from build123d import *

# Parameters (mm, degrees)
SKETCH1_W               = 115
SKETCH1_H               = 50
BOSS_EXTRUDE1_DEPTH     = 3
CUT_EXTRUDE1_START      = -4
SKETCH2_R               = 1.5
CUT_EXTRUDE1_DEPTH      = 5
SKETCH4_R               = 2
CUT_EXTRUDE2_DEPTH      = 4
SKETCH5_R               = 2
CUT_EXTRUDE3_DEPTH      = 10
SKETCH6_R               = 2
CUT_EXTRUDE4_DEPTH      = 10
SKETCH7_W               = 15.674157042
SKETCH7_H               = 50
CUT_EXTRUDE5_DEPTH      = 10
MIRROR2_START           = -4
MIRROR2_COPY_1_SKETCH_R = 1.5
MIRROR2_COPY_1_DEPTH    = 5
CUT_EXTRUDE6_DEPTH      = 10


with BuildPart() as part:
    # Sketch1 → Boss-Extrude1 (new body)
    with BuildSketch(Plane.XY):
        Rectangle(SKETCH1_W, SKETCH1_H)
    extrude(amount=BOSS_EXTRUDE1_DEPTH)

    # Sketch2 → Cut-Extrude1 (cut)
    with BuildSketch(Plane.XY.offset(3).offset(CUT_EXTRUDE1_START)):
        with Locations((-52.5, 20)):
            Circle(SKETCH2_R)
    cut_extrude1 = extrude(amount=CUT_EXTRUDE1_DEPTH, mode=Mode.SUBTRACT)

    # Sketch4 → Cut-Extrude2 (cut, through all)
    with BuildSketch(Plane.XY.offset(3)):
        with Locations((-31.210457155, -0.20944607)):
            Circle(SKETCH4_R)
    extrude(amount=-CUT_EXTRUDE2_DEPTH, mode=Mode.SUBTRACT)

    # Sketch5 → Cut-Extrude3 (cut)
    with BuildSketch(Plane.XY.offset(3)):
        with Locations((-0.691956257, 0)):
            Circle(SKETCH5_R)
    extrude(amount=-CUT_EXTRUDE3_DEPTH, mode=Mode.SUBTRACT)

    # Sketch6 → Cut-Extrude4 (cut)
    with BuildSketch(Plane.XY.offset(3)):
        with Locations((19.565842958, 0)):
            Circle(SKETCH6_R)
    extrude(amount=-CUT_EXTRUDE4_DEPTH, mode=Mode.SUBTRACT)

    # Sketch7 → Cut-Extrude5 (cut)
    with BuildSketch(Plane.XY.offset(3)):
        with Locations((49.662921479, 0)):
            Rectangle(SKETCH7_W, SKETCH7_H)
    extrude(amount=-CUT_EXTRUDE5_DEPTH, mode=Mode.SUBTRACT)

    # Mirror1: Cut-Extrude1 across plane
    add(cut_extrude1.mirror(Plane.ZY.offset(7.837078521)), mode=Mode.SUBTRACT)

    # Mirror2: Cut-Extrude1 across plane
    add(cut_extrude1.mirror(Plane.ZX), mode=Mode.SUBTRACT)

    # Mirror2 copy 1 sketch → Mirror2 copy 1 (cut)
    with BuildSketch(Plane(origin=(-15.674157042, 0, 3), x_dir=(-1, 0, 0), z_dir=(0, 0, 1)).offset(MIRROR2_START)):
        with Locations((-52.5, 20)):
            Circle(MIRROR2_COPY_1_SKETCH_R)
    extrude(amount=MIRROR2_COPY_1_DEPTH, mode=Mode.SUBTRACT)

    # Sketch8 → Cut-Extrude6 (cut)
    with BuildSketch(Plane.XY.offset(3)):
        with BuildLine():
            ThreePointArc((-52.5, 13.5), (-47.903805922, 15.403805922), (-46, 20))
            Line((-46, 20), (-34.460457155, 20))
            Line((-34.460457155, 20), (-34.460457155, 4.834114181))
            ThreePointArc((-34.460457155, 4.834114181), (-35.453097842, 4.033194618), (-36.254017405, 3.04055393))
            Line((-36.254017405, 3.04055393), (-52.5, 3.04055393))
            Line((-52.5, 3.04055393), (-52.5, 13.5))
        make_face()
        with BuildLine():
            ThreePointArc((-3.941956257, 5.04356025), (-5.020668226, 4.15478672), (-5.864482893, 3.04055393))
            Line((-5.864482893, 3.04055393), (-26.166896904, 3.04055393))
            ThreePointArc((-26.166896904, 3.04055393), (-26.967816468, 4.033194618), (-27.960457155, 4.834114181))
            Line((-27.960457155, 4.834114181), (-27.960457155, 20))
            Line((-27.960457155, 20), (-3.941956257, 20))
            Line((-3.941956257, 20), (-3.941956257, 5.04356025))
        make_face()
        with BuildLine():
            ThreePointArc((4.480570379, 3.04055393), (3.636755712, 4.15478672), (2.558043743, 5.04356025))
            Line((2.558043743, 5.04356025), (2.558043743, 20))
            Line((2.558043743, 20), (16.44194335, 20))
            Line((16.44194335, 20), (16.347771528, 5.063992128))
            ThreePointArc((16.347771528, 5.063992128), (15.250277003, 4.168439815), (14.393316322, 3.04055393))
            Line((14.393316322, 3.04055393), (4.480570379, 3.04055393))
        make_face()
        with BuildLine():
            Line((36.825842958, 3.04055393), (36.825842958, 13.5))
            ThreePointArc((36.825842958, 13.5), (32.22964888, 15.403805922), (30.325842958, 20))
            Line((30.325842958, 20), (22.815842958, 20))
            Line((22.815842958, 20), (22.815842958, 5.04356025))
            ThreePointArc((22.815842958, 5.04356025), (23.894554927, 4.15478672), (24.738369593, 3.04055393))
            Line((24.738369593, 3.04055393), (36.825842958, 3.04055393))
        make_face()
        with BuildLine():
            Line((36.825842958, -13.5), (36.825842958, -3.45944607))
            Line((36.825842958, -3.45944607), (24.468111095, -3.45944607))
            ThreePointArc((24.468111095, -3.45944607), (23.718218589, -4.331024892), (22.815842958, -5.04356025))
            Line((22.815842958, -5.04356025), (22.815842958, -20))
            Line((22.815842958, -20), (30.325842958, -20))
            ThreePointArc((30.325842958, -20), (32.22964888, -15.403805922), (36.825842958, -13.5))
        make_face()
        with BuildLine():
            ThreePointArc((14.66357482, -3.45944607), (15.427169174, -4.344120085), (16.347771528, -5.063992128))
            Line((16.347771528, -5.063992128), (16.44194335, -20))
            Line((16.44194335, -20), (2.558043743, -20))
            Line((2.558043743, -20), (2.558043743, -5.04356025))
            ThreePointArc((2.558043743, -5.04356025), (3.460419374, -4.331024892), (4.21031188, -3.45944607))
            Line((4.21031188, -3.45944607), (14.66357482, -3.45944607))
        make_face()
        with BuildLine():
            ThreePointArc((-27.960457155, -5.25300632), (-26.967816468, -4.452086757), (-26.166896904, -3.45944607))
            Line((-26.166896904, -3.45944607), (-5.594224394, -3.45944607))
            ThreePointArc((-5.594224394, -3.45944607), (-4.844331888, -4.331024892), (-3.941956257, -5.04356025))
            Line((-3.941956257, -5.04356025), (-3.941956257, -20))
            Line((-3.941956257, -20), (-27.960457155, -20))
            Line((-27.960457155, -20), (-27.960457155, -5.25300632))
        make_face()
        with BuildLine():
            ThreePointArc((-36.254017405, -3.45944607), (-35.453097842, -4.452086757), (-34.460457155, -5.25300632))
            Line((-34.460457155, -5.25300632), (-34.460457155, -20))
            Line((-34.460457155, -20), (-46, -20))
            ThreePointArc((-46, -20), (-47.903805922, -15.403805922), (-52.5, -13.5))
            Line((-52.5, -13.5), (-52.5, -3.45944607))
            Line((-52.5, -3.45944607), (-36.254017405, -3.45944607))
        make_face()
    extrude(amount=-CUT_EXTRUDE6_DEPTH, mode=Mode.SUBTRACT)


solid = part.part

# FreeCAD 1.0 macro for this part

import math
import FreeCAD as App
import Part
import Sketcher

V = App.Vector

doc = App.newDocument("Part")
body = doc.addObject("PartDesign::Body", "Body")

# Sketch on XY plane
sketch1 = body.newObject("Sketcher::SketchObject", "Sketch")
sketch1.AttachmentSupport = (doc.getObject("XY_Plane"), [""])
sketch1.MapMode = "FlatFace"
sketch1.addGeometry([
    Part.LineSegment(V(-58, 25, 0), V(-58, -25, 0)),
    Part.LineSegment(V(-58, -25, 0), V(58, -25, 0)),
    Part.LineSegment(V(58, -25, 0), V(58, 25, 0)),
    Part.LineSegment(V(58, 25, 0), V(-58, 25, 0)),
], False)
sketch1.addConstraint([
    Sketcher.Constraint("Coincident", 0, 2, 1, 1),
    Sketcher.Constraint("Coincident", 1, 2, 2, 1),
    Sketcher.Constraint("Coincident", 2, 2, 3, 1),
    Sketcher.Constraint("Coincident", 3, 2, 0, 1),
    Sketcher.Constraint("Vertical", 0),
    Sketcher.Constraint("Horizontal", 1),
    Sketcher.Constraint("Vertical", 2),
    Sketcher.Constraint("Horizontal", 3),
    Sketcher.Constraint("Symmetric", 0, 2, 2, 2, -1, 1),
    Sketcher.Constraint("DistanceX", 1, 1, 1, 2, 115.0),
    Sketcher.Constraint("DistanceY", 0, 2, 0, 1, 50.0),
])
pad1 = body.newObject("PartDesign::Pad", "Pad")
pad1.Profile = sketch1
pad1.Length = 3

# Sketch on XY plane
sketch2 = body.newObject("Sketcher::SketchObject", "Sketch001")
sketch2.AttachmentSupport = (doc.getObject("XY_Plane"), [""])
sketch2.MapMode = "FlatFace"
sketch2.AttachmentOffset = App.Placement(V(0, 0, -1), App.Rotation())
sketch2.addGeometry(Part.Circle(V(-52.5, 20, 0), V(0, 0, 1), 1.5), False)
sketch2.addConstraint([
    Sketcher.Constraint("Diameter", 0, 3.0),
    Sketcher.Constraint("DistanceY", -1, 1, 0, 3, 20.0),
    Sketcher.Constraint("DistanceX", 0, 3, -1, 1, 52.5),
])
pocket1 = body.newObject("PartDesign::Pocket", "Pocket")
pocket1.Profile = sketch2
pocket1.Length = 5
pocket1.Reversed = True

# Sketch on XY plane
sketch3 = body.newObject("Sketcher::SketchObject", "Sketch002")
sketch3.AttachmentSupport = (doc.getObject("XY_Plane"), [""])
sketch3.MapMode = "FlatFace"
sketch3.AttachmentOffset = App.Placement(V(0, 0, 3), App.Rotation())
sketch3.addGeometry(Part.Circle(V(-31.2, -0.2, 0), V(0, 0, 1), 2), False)
sketch3.addConstraint([
    Sketcher.Constraint("Diameter", 0, 4.0),
    Sketcher.Constraint("DistanceX", 0, 3, -1, 1, 31.210457),
    Sketcher.Constraint("DistanceY", 0, 3, -1, 1, 0.209446),
])
pocket2 = body.newObject("PartDesign::Pocket", "Pocket001")
pocket2.Profile = sketch3
pocket2.Type = "ThroughAll"

# Sketch on XY plane
sketch4 = body.newObject("Sketcher::SketchObject", "Sketch003")
sketch4.AttachmentSupport = (doc.getObject("XY_Plane"), [""])
sketch4.MapMode = "FlatFace"
sketch4.AttachmentOffset = App.Placement(V(0, 0, 3), App.Rotation())
sketch4.addGeometry(Part.Circle(V(-0.7, 0, 0), V(0, 0, 1), 2), False)
sketch4.addConstraint([
    Sketcher.Constraint("PointOnObject", 0, 3, -1),
    Sketcher.Constraint("Diameter", 0, 4.0),
    Sketcher.Constraint("DistanceX", 0, 3, -1, 1, 0.691956),
])
pocket3 = body.newObject("PartDesign::Pocket", "Pocket002")
pocket3.Profile = sketch4
pocket3.Length = 10

# Sketch on XY plane
sketch5 = body.newObject("Sketcher::SketchObject", "Sketch004")
sketch5.AttachmentSupport = (doc.getObject("XY_Plane"), [""])
sketch5.MapMode = "FlatFace"
sketch5.AttachmentOffset = App.Placement(V(0, 0, 3), App.Rotation())
sketch5.addGeometry(Part.Circle(V(19.6, 0, 0), V(0, 0, 1), 2), False)
sketch5.addConstraint([
    Sketcher.Constraint("PointOnObject", 0, 3, -1),
    Sketcher.Constraint("Diameter", 0, 4.0),
    Sketcher.Constraint("DistanceX", -1, 1, 0, 3, 19.565843),
])
pocket4 = body.newObject("PartDesign::Pocket", "Pocket003")
pocket4.Profile = sketch5
pocket4.Length = 10

# Sketch on XY plane
sketch6 = body.newObject("Sketcher::SketchObject", "Sketch005")
sketch6.AttachmentSupport = (doc.getObject("XY_Plane"), [""])
sketch6.MapMode = "FlatFace"
sketch6.AttachmentOffset = App.Placement(V(0, 0, 3), App.Rotation())
sketch6.addGeometry([
    Part.LineSegment(V(42, 25, 0), V(42, -25, 0)),
    Part.LineSegment(V(42, -25, 0), V(58, -25, 0)),
    Part.LineSegment(V(58, -25, 0), V(58, 25, 0)),
    Part.LineSegment(V(58, 25, 0), V(42, 25, 0)),
], False)
sketch6.addConstraint([
    Sketcher.Constraint("Coincident", 0, 2, 1, 1),
    Sketcher.Constraint("Coincident", 1, 2, 2, 1),
    Sketcher.Constraint("Coincident", 2, 2, 3, 1),
    Sketcher.Constraint("Coincident", 3, 2, 0, 1),
    Sketcher.Constraint("Vertical", 0),
    Sketcher.Constraint("Horizontal", 1),
    Sketcher.Constraint("Vertical", 2),
    Sketcher.Constraint("Horizontal", 3),
    Sketcher.Constraint("DistanceY", 0, 2, 0, 1, 50.0),
    Sketcher.Constraint("DistanceY", 0, 2, -1, 1, 25.0),
    Sketcher.Constraint("DistanceX", -1, 1, 1, 2, 57.5),
    Sketcher.Constraint("DistanceX", 1, 1, 1, 2, 15.674157),
])
pocket5 = body.newObject("PartDesign::Pocket", "Pocket004")
pocket5.Profile = sketch6
pocket5.Length = 10
doc.recompute()

datumplane = body.newObject("PartDesign::Plane", "DatumPlane")
datumplane.AttachmentSupport = (doc.getObject("YZ_Plane"), [""])
datumplane.MapMode = "FlatFace"
datumplane.AttachmentOffset = App.Placement(V(0, 0, -7.837079), App.Rotation())
mirrored = body.newObject("PartDesign::Mirrored", "Mirrored")
mirrored.Originals = [pocket1]
mirrored.MirrorPlane = (datumplane, [""])
body.Tip = mirrored
doc.recompute()

mirrored2 = body.newObject("PartDesign::Mirrored", "Mirrored001")
mirrored2.Originals = [pocket1]
mirrored2.MirrorPlane = (doc.getObject("XZ_Plane"), [""])
body.Tip = mirrored2

# Sketch on XY plane
sketch7 = body.newObject("Sketcher::SketchObject", "Sketch006")
sketch7.AttachmentSupport = (doc.getObject("XY_Plane"), [""])
sketch7.MapMode = "FlatFace"
sketch7.AttachmentOffset = App.Placement(V(0, 0, -1), App.Rotation())
sketch7.addGeometry(Part.Circle(V(36.8, -20, 0), V(0, 0, 1), 1.5), False)
sketch7.addConstraint([
    Sketcher.Constraint("Diameter", 0, 3.0),
    Sketcher.Constraint("DistanceY", 0, 3, -1, 1, 20.0),
    Sketcher.Constraint("DistanceX", -1, 1, 0, 3, 36.825843),
])
pocket6 = body.newObject("PartDesign::Pocket", "Pocket005")
pocket6.Profile = sketch7
pocket6.Length = 5
pocket6.Reversed = True

# Sketch on XY plane
sketch8 = body.newObject("Sketcher::SketchObject", "Sketch007")
sketch8.AttachmentSupport = (doc.getObject("XY_Plane"), [""])
sketch8.MapMode = "FlatFace"
sketch8.AttachmentOffset = App.Placement(V(0, 0, 3), App.Rotation())
sketch8.addGeometry([
    Part.ArcOfCircle(Part.Circle(V(-52.5, 20, 0), V(0, 0, 1), 6.5), math.radians(-90), math.radians(0)),  # 0
    Part.LineSegment(V(-52.5, 13.5, 0), V(-52.5, 3, 0)),  # 1
    Part.LineSegment(V(-52.5, 3, 0), V(-36.3, 3, 0)),  # 2
    Part.ArcOfCircle(Part.Circle(V(-31.2, -0.2, 0), V(0, 0, 1), 6), math.radians(123), math.radians(147)),  # 3
    Part.LineSegment(V(-34.5, 4.8, 0), V(-34.5, 20, 0)),  # 4
    Part.LineSegment(V(-34.5, 20, 0), V(-46, 20, 0)),  # 5
    Part.ArcOfCircle(Part.Circle(V(-0.7, 0, 0), V(0, 0, 1), 6), math.radians(123), math.radians(150)),  # 6
    Part.LineSegment(V(-3.9, 5, 0), V(-3.9, 20, 0)),  # 7
    Part.LineSegment(V(-3.9, 20, 0), V(-28, 20, 0)),  # 8
    Part.LineSegment(V(-28, 20, 0), V(-28, 4.8, 0)),  # 9
    Part.ArcOfCircle(Part.Circle(V(-31.2, -0.2, 0), V(0, 0, 1), 6), math.radians(33), math.radians(57)),  # 10
    Part.LineSegment(V(-26.2, 3, 0), V(-5.9, 3, 0)),  # 11
    Part.ArcOfCircle(Part.Circle(V(-0.7, 0, 0), V(0, 0, 1), 6), math.radians(30), math.radians(57)),  # 12
    Part.LineSegment(V(4.5, 3, 0), V(14.4, 3, 0)),  # 13
    Part.ArcOfCircle(Part.Circle(V(19.6, 0, 0), V(0, 0, 1), 6), math.radians(122), math.radians(150)),  # 14
    Part.LineSegment(V(16.3, 5.1, 0), V(16.4, 20, 0)),  # 15
    Part.LineSegment(V(16.4, 20, 0), V(2.6, 20, 0)),  # 16
    Part.LineSegment(V(2.6, 20, 0), V(2.6, 5, 0)),  # 17
    Part.LineSegment(V(36.8, 3, 0), V(36.8, 13.5, 0)),  # 18
    Part.ArcOfCircle(Part.Circle(V(36.8, 20, 0), V(0, 0, 1), 6.5), math.radians(180), math.radians(270)),  # 19
    Part.LineSegment(V(30.3, 20, 0), V(22.8, 20, 0)),  # 20
    Part.LineSegment(V(22.8, 20, 0), V(22.8, 5, 0)),  # 21
    Part.ArcOfCircle(Part.Circle(V(19.6, 0, 0), V(0, 0, 1), 6), math.radians(30), math.radians(57)),  # 22
    Part.LineSegment(V(24.7, 3, 0), V(36.8, 3, 0)),  # 23
    Part.LineSegment(V(36.8, -13.5, 0), V(36.8, -3.5, 0)),  # 24
    Part.LineSegment(V(36.8, -3.5, 0), V(24.5, -3.5, 0)),  # 25
    Part.ArcOfCircle(Part.Circle(V(19.6, 0, 0), V(0, 0, 1), 6), math.radians(-57), math.radians(-35)),  # 26
    Part.LineSegment(V(22.8, -5, 0), V(22.8, -20, 0)),  # 27
    Part.LineSegment(V(22.8, -20, 0), V(30.3, -20, 0)),  # 28
    Part.ArcOfCircle(Part.Circle(V(36.8, -20, 0), V(0, 0, 1), 6.5), math.radians(90), math.radians(180)),  # 29
    Part.ArcOfCircle(Part.Circle(V(19.6, 0, 0), V(0, 0, 1), 6), math.radians(-145), math.radians(-122)),  # 30
    Part.LineSegment(V(14.7, -3.5, 0), V(4.2, -3.5, 0)),  # 31
    Part.ArcOfCircle(Part.Circle(V(-0.7, 0, 0), V(0, 0, 1), 6), math.radians(-57), math.radians(-35)),  # 32
    Part.LineSegment(V(2.6, -5, 0), V(2.6, -20, 0)),  # 33
    Part.LineSegment(V(2.6, -20, 0), V(16.4, -20, 0)),  # 34
    Part.LineSegment(V(16.4, -20, 0), V(16.3, -5.1, 0)),  # 35
    Part.ArcOfCircle(Part.Circle(V(-31.2, -0.2, 0), V(0, 0, 1), 6), math.radians(-57), math.radians(-33)),  # 36
    Part.LineSegment(V(-28, -5.3, 0), V(-28, -20, 0)),  # 37
    Part.LineSegment(V(-28, -20, 0), V(-3.9, -20, 0)),  # 38
    Part.LineSegment(V(-3.9, -20, 0), V(-3.9, -5, 0)),  # 39
    Part.ArcOfCircle(Part.Circle(V(-0.7, 0, 0), V(0, 0, 1), 6), math.radians(-145), math.radians(-123)),  # 40
    Part.LineSegment(V(-5.6, -3.5, 0), V(-26.2, -3.5, 0)),  # 41
    Part.ArcOfCircle(Part.Circle(V(-31.2, -0.2, 0), V(0, 0, 1), 6), math.radians(-147), math.radians(-123)),  # 42
    Part.LineSegment(V(-36.3, -3.5, 0), V(-52.5, -3.5, 0)),  # 43
    Part.LineSegment(V(-52.5, -3.5, 0), V(-52.5, -13.5, 0)),  # 44
    Part.ArcOfCircle(Part.Circle(V(-52.5, -20, 0), V(0, 0, 1), 6.5), math.radians(0), math.radians(90)),  # 45
    Part.LineSegment(V(-46, -20, 0), V(-34.5, -20, 0)),  # 46
    Part.LineSegment(V(-34.5, -20, 0), V(-34.5, -5.3, 0)),  # 47
], False)
sketch8.addConstraint([
    Sketcher.Constraint("Coincident", 0, 1, 1, 1),
    Sketcher.Constraint("Coincident", 1, 2, 2, 1),
    Sketcher.Constraint("Coincident", 2, 2, 3, 2),
    Sketcher.Constraint("Coincident", 3, 1, 4, 1),
    Sketcher.Constraint("Coincident", 4, 2, 5, 1),
    Sketcher.Constraint("Coincident", 5, 2, 0, 2),
    Sketcher.Constraint("Coincident", 6, 1, 7, 1),
    Sketcher.Constraint("Coincident", 7, 2, 8, 1),
    Sketcher.Constraint("Coincident", 8, 2, 9, 1),
    Sketcher.Constraint("Coincident", 9, 2, 10, 2),
    Sketcher.Constraint("Coincident", 10, 1, 11, 1),
    Sketcher.Constraint("Coincident", 11, 2, 6, 2),
    Sketcher.Constraint("Coincident", 12, 1, 13, 1),
    Sketcher.Constraint("Coincident", 13, 2, 14, 2),
    Sketcher.Constraint("Coincident", 14, 1, 15, 1),
    Sketcher.Constraint("Coincident", 15, 2, 16, 1),
    Sketcher.Constraint("Coincident", 16, 2, 17, 1),
    Sketcher.Constraint("Coincident", 17, 2, 12, 2),
    Sketcher.Constraint("Coincident", 18, 2, 19, 2),
    Sketcher.Constraint("Coincident", 19, 1, 20, 1),
    Sketcher.Constraint("Coincident", 20, 2, 21, 1),
    Sketcher.Constraint("Coincident", 21, 2, 22, 2),
    Sketcher.Constraint("Coincident", 22, 1, 23, 1),
    Sketcher.Constraint("Coincident", 23, 2, 18, 1),
    Sketcher.Constraint("Coincident", 24, 2, 25, 1),
    Sketcher.Constraint("Coincident", 25, 2, 26, 2),
    Sketcher.Constraint("Coincident", 26, 1, 27, 1),
    Sketcher.Constraint("Coincident", 27, 2, 28, 1),
    Sketcher.Constraint("Coincident", 28, 2, 29, 2),
    Sketcher.Constraint("Coincident", 29, 1, 24, 1),
    Sketcher.Constraint("Coincident", 30, 1, 31, 1),
    Sketcher.Constraint("Coincident", 31, 2, 32, 2),
    Sketcher.Constraint("Coincident", 32, 1, 33, 1),
    Sketcher.Constraint("Coincident", 33, 2, 34, 1),
    Sketcher.Constraint("Coincident", 34, 2, 35, 1),
    Sketcher.Constraint("Coincident", 35, 2, 30, 2),
    Sketcher.Constraint("Coincident", 36, 1, 37, 1),
    Sketcher.Constraint("Coincident", 37, 2, 38, 1),
    Sketcher.Constraint("Coincident", 38, 2, 39, 1),
    Sketcher.Constraint("Coincident", 39, 2, 40, 2),
    Sketcher.Constraint("Coincident", 40, 1, 41, 1),
    Sketcher.Constraint("Coincident", 41, 2, 36, 2),
    Sketcher.Constraint("Coincident", 42, 1, 43, 1),
    Sketcher.Constraint("Coincident", 43, 2, 44, 1),
    Sketcher.Constraint("Coincident", 44, 2, 45, 2),
    Sketcher.Constraint("Coincident", 45, 1, 46, 1),
    Sketcher.Constraint("Coincident", 46, 2, 47, 1),
    Sketcher.Constraint("Coincident", 47, 2, 42, 2),
    Sketcher.Constraint("Vertical", 1),
    Sketcher.Constraint("Horizontal", 2),
    Sketcher.Constraint("Vertical", 4),
    Sketcher.Constraint("Horizontal", 5),
    Sketcher.Constraint("Vertical", 7),
    Sketcher.Constraint("Horizontal", 8),
    Sketcher.Constraint("Vertical", 9),
    Sketcher.Constraint("Horizontal", 11),
    Sketcher.Constraint("Horizontal", 13),
    Sketcher.Constraint("Horizontal", 16),
    Sketcher.Constraint("Vertical", 17),
    Sketcher.Constraint("Vertical", 18),
    Sketcher.Constraint("Horizontal", 20),
    Sketcher.Constraint("Vertical", 21),
    Sketcher.Constraint("Horizontal", 23),
    Sketcher.Constraint("Vertical", 24),
    Sketcher.Constraint("Horizontal", 25),
    Sketcher.Constraint("Vertical", 27),
    Sketcher.Constraint("Horizontal", 28),
    Sketcher.Constraint("Horizontal", 31),
    Sketcher.Constraint("Vertical", 33),
    Sketcher.Constraint("Horizontal", 34),
    Sketcher.Constraint("Vertical", 37),
    Sketcher.Constraint("Horizontal", 38),
    Sketcher.Constraint("Vertical", 39),
    Sketcher.Constraint("Horizontal", 41),
    Sketcher.Constraint("Horizontal", 43),
    Sketcher.Constraint("Vertical", 44),
    Sketcher.Constraint("Horizontal", 46),
    Sketcher.Constraint("Vertical", 47),
    Sketcher.Constraint("Coincident", 10, 3, 3, 3),
    Sketcher.Constraint("Coincident", 12, 3, 6, 3),
    Sketcher.Constraint("Coincident", 22, 3, 14, 3),
    Sketcher.Constraint("Coincident", 26, 3, 14, 3),
    Sketcher.Constraint("Coincident", 30, 3, 14, 3),
    Sketcher.Constraint("Coincident", 32, 3, 6, 3),
    Sketcher.Constraint("Coincident", 36, 3, 3, 3),
    Sketcher.Constraint("Coincident", 40, 3, 6, 3),
    Sketcher.Constraint("Coincident", 42, 3, 3, 3),
    Sketcher.Constraint("Equal", 3, 6),
    Sketcher.Constraint("Equal", 6, 10),
    Sketcher.Constraint("Equal", 10, 12),
    Sketcher.Constraint("Equal", 12, 14),
    Sketcher.Constraint("Equal", 0, 19),
    Sketcher.Constraint("Equal", 14, 22),
    Sketcher.Constraint("Equal", 22, 26),
    Sketcher.Constraint("Equal", 19, 29),
    Sketcher.Constraint("Equal", 26, 30),
    Sketcher.Constraint("Equal", 30, 32),
    Sketcher.Constraint("Equal", 32, 36),
    Sketcher.Constraint("Equal", 36, 40),
    Sketcher.Constraint("Equal", 40, 42),
    Sketcher.Constraint("Equal", 29, 45),
    Sketcher.Constraint("Symmetric", 19, 3, 29, 3, -1),
    Sketcher.Constraint("Symmetric", 0, 3, 45, 3, -1),
    Sketcher.Constraint("Symmetric", 21, 2, 26, 1, -1),
    Sketcher.Constraint("Symmetric", 17, 2, 32, 1, -1),
    Sketcher.Constraint("Symmetric", 15, 2, 34, 2, -1),
    Sketcher.Constraint("Symmetric", 8, 2, 37, 2, -1),
    Sketcher.Constraint("Symmetric", 4, 2, 46, 2, -1),
    Sketcher.Constraint("Horizontal", 0, 3, 19, 3),
    Sketcher.Constraint("Horizontal", 19, 3, 4, 2),
    Sketcher.Constraint("Horizontal", 5, 2, 7, 2),
    Sketcher.Constraint("Horizontal", 3, 1, 9, 2),
    Sketcher.Constraint("Horizontal", 2, 2, 10, 1),
    Sketcher.Constraint("Horizontal", 11, 2, 12, 1),
    Sketcher.Constraint("Horizontal", 8, 2, 15, 2),
    Sketcher.Constraint("Horizontal", 6, 1, 17, 2),
    Sketcher.Constraint("Horizontal", 16, 2, 19, 1),
    Sketcher.Constraint("Horizontal", 17, 2, 21, 2),
    Sketcher.Constraint("Horizontal", 13, 2, 22, 1),
    Sketcher.Constraint("Horizontal", 45, 3, 27, 2),
    Sketcher.Constraint("Horizontal", 25, 2, 30, 1),
    Sketcher.Constraint("Horizontal", 32, 1, 39, 2),
    Sketcher.Constraint("Horizontal", 31, 2, 40, 1),
    Sketcher.Constraint("Horizontal", 41, 2, 42, 1),
    Sketcher.Constraint("Vertical", 45, 3, 0, 1),
    Sketcher.Constraint("Vertical", 29, 3, 18, 2),
    Sketcher.Constraint("Vertical", 23, 2, 24, 2),
    Sketcher.Constraint("Vertical", 14, 1, 35, 2),
    Sketcher.Constraint("Vertical", 10, 1, 41, 2),
    Sketcher.Constraint("Vertical", 1, 2, 43, 2),
    Sketcher.Constraint("Radius", 3, 6.0),
    Sketcher.Constraint("Radius", 0, 6.5),
    Sketcher.Constraint("DistanceY", -1, 1, 0, 3, 20.0),
    Sketcher.Constraint("DistanceX", 5, 2, -1, 1, 46.0),
    Sketcher.Constraint("DistanceX", 20, 2, 20, 1, 7.51),
    Sketcher.Constraint("DistanceX", 8, 2, 8, 1, 24.018501),
    Sketcher.Constraint("DistanceX", 16, 2, 16, 1, 13.8839),
    Sketcher.Constraint("DistanceX", 25, 2, 25, 1, 12.357732),
    Sketcher.Constraint("DistanceY", 7, 1, 7, 2, 14.95644),
    Sketcher.Constraint("DistanceX", 2, 1, 2, 2, 16.245983),
    Sketcher.Constraint("DistanceX", 5, 2, 5, 1, 11.539543),
    Sketcher.Constraint("DistanceX", 11, 1, 11, 2, 20.302414),
    Sketcher.Constraint("DistanceX", 13, 1, 13, 2, 9.912746),
    Sketcher.Constraint("DistanceX", -1, 1, 14, 1, 16.347772),
])
pocket7 = body.newObject("PartDesign::Pocket", "Pocket006")
pocket7.Profile = sketch8
pocket7.Length = 10

doc.recompute()
